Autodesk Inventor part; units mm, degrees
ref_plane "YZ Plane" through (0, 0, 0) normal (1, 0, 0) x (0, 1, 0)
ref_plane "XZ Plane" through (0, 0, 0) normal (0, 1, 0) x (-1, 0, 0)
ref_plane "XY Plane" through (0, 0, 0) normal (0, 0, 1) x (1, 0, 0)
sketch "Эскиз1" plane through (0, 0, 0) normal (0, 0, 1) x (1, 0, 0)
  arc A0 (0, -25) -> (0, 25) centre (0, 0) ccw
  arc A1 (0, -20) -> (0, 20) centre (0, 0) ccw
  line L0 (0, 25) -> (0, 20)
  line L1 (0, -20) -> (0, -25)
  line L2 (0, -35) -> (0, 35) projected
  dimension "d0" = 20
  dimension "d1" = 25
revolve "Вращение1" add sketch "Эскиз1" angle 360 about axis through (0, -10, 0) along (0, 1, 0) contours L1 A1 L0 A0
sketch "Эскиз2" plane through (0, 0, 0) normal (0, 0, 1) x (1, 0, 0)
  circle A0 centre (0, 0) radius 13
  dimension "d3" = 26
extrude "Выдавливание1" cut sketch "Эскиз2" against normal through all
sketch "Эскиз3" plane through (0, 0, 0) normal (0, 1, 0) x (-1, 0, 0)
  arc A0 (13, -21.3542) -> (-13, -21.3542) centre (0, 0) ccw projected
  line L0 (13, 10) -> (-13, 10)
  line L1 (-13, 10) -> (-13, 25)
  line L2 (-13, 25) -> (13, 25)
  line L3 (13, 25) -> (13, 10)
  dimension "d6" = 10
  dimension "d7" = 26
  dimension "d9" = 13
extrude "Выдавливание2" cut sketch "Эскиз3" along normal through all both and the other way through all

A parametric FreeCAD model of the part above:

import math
import FreeCAD as App
import Part
import Sketcher
from FreeCAD import Vector
Q = App.Units.Quantity

doc = App.newDocument("Part")
body = doc.addObject("PartDesign::Body", "Body")

# Sketch on XY plane
sketch1 = body.newObject("Sketcher::SketchObject", "Sketch")
sketch1.AttachmentSupport = (doc.getObject("XY_Plane"), [""])
sketch1.MapMode = "FlatFace"
sketch1.addGeometry([
    Part.LineSegment(Vector(0, -20, 0), Vector(0, -25, 0)),
    Part.ArcOfCircle(Part.Circle(Vector(0, 0, 0), Vector(0, 0, 1), 25), math.radians(-90), math.radians(90)),
    Part.LineSegment(Vector(0, 25, 0), Vector(0, 20, 0)),
    Part.ArcOfCircle(Part.Circle(Vector(0, 0, 0), Vector(0, 0, 1), 20), math.radians(-90), math.radians(90)),
], False)
sketch1.addConstraint([
    Sketcher.Constraint("Coincident", 0, 2, 1, 1),
    Sketcher.Constraint("Coincident", 1, 2, 2, 1),
    Sketcher.Constraint("Coincident", 2, 2, 3, 2),
    Sketcher.Constraint("Coincident", 3, 1, 0, 1),
    Sketcher.Constraint("Vertical", 0),
    Sketcher.Constraint("Vertical", 2),
    Sketcher.Constraint("Coincident", 1, 3, -1, 1),
    Sketcher.Constraint("Coincident", 3, 3, -1, 1),
    Sketcher.Constraint("PointOnObject", 0, 2, -2),
    Sketcher.Constraint("PointOnObject", 1, 2, -2),
    Sketcher.Constraint("Radius", 1, Q("25 mm")),
    Sketcher.Constraint("Radius", 3, Q("20 mm")),
])
revolution = body.newObject("PartDesign::Revolution", "Revolution")
revolution.Profile = sketch1
revolution.ReferenceAxis = (sketch1, ["V_Axis"])
revolution.Angle = 360

# Sketch on XY plane
sketch2 = body.newObject("Sketcher::SketchObject", "Sketch001")
sketch2.AttachmentSupport = (doc.getObject("XY_Plane"), [""])
sketch2.MapMode = "FlatFace"
sketch2.addGeometry(Part.Circle(Vector(0, 0, 0), Vector(0, 0, 1), 13), False)
sketch2.addConstraint([
    Sketcher.Constraint("Coincident", 0, 3, -1, 1),
    Sketcher.Constraint("Diameter", 0, Q("26 mm")),
])
pocket1 = body.newObject("PartDesign::Pocket", "Pocket")
pocket1.Profile = sketch2
pocket1.Type = "ThroughAll"

# Sketch on XZ plane
sketch3 = body.newObject("Sketcher::SketchObject", "Sketch002")
sketch3.AttachmentSupport = (doc.getObject("XZ_Plane"), [""])
sketch3.MapMode = "FlatFace"
sketch3.addGeometry([
    Part.LineSegment(Vector(-13, 10, 0), Vector(-13, 25, 0)),
    Part.LineSegment(Vector(-13, 25, 0), Vector(13, 25, 0)),
    Part.LineSegment(Vector(13, 25, 0), Vector(13, 10, 0)),
    Part.LineSegment(Vector(13, 10, 0), Vector(-13, 10, 0)),
], False)
sketch3.addConstraint([
    Sketcher.Constraint("Coincident", 0, 2, 1, 1),
    Sketcher.Constraint("Coincident", 1, 2, 2, 1),
    Sketcher.Constraint("Coincident", 2, 2, 3, 1),
    Sketcher.Constraint("Coincident", 3, 2, 0, 1),
    Sketcher.Constraint("Vertical", 0),
    Sketcher.Constraint("Horizontal", 1),
    Sketcher.Constraint("Vertical", 2),
    Sketcher.Constraint("Horizontal", 3),
    Sketcher.Constraint("DistanceX", 1, 1, 1, 2, Q("26 mm")),
    Sketcher.Constraint("DistanceX", 0, 2, -1, 1, Q("13 mm")),
    Sketcher.Constraint("DistanceY", -1, 1, 2, 2, Q("10 mm")),
    Sketcher.Constraint("DistanceY", 0, 1, 0, 2, Q("15 mm")),
])
pocket2 = body.newObject("PartDesign::Pocket", "Pocket001")
pocket2.Profile = sketch3
pocket2.Type = "ThroughAll"
pocket2.Midplane = True

doc.recompute()
